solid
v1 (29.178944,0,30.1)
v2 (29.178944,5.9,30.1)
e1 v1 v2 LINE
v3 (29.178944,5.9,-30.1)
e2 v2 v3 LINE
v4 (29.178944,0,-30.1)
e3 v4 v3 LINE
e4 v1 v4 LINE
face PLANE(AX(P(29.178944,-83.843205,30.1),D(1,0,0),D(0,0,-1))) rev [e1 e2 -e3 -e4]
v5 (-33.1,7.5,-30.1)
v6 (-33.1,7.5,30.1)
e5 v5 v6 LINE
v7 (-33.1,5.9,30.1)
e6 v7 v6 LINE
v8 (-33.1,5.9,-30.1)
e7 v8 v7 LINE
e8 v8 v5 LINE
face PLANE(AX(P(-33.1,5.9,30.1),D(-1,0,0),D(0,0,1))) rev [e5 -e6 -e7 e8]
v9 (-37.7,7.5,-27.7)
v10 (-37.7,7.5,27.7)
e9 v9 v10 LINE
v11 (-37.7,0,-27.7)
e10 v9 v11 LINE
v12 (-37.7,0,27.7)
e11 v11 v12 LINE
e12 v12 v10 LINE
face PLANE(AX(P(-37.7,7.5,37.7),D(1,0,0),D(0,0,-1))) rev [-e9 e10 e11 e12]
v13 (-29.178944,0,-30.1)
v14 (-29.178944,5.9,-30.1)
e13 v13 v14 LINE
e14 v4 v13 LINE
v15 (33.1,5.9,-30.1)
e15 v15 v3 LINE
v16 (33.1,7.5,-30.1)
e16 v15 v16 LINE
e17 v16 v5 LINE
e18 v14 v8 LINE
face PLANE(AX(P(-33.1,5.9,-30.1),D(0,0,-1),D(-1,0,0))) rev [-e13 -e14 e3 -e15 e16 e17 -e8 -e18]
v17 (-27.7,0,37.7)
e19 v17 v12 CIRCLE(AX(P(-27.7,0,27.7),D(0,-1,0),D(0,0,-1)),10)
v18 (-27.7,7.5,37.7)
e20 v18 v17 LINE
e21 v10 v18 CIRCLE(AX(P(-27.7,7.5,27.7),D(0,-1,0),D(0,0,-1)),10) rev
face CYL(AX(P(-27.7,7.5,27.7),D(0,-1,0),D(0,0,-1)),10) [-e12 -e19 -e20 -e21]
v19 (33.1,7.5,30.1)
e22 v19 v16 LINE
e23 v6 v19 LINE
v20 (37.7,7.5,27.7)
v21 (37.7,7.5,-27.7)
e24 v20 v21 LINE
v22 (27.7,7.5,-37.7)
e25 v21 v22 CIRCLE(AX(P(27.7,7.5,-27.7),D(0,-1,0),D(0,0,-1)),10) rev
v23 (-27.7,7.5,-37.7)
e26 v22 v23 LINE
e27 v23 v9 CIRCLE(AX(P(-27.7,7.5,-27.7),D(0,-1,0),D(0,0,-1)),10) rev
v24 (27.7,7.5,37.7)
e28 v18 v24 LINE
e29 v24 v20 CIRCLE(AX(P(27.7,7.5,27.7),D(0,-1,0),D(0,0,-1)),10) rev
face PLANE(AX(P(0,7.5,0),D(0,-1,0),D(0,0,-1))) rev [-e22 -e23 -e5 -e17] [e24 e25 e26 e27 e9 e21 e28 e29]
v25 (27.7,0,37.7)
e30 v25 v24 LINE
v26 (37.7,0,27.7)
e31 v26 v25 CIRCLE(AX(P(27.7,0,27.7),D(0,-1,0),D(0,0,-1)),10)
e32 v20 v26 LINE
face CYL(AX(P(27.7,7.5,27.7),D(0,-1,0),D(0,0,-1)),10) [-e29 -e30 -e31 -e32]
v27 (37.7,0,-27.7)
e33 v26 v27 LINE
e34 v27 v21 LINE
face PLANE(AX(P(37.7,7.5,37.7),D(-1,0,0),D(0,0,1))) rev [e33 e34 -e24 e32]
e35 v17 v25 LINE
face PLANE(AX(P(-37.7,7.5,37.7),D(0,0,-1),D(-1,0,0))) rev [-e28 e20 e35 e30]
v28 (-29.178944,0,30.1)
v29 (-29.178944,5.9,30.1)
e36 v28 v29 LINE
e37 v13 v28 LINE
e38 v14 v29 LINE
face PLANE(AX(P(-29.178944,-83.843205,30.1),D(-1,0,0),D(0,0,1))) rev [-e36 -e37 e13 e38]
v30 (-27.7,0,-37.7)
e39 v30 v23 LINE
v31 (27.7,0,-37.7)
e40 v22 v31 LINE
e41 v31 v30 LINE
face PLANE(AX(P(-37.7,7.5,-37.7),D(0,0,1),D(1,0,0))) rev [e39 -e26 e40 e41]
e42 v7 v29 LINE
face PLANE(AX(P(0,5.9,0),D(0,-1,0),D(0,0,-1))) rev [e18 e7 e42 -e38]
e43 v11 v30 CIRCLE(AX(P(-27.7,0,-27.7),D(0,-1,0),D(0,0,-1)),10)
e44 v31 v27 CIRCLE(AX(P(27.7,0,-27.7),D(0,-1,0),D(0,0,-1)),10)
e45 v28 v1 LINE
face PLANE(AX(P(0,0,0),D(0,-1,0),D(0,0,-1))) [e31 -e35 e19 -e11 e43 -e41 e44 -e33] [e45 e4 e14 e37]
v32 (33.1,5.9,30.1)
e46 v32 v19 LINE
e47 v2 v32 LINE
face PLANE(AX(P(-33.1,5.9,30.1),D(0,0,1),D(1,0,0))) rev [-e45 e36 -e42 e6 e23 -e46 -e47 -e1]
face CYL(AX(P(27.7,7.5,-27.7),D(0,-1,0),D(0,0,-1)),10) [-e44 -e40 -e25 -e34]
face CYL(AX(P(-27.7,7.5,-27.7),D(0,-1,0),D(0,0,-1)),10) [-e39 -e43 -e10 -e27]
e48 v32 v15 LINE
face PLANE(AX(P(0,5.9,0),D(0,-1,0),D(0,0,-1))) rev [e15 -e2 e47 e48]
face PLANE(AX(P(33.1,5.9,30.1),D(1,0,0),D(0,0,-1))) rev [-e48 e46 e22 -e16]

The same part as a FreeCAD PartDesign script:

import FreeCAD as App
import Part
import Sketcher

V = App.Vector
Q = App.Units.Quantity


def edges_at(feature, points):
    """Names of the edges that pass closest to the given points."""
    edges = feature.Shape.Edges
    near = lambda p: min(range(len(edges)), key=lambda i: edges[i].distToShape(Part.Vertex(*p))[0])
    return sorted({f"Edge{near(p) + 1}" for p in points})

doc = App.newDocument("Part")
body = doc.addObject("PartDesign::Body", "Body")

sketch1 = body.newObject("Sketcher::SketchObject", "Sketch")
sketch1.AttachmentSupport = (doc.getObject("XZ_Plane"), [""])
sketch1.MapMode = "FlatFace"
sketch1.addGeometry([
    Part.LineSegment(V(-38, -38, 0), V(-38, 38, 0)),
    Part.LineSegment(V(-38, 38, 0), V(38, 38, 0)),
    Part.LineSegment(V(38, 38, 0), V(38, -38, 0)),
    Part.LineSegment(V(38, -38, 0), V(-38, -38, 0)),
], False)
sketch1.addConstraint([
    Sketcher.Constraint("Coincident", 0, 2, 1, 1),
    Sketcher.Constraint("Coincident", 1, 2, 2, 1),
    Sketcher.Constraint("Coincident", 2, 2, 3, 1),
    Sketcher.Constraint("Coincident", 3, 2, 0, 1),
    Sketcher.Constraint("Vertical", 0),
    Sketcher.Constraint("Horizontal", 1),
    Sketcher.Constraint("Vertical", 2),
    Sketcher.Constraint("Horizontal", 3),
    Sketcher.Constraint("Symmetric", 0, 2, 2, 2, -1, 1),
    Sketcher.Constraint("Equal", 3, 0),
    Sketcher.Constraint("DistanceX", 1, 1, 1, 2, Q("75.4 mm")),
])
pad1 = body.newObject("PartDesign::Pad", "Pad")
pad1.Profile = sketch1
pad1.Length = 7.5
pad1.Reversed = True

sketch2 = body.newObject("Sketcher::SketchObject", "Sketch001")
sketch2.AttachmentSupport = (doc.getObject("XZ_Plane"), [""])
sketch2.MapMode = "FlatFace"
sketch2.AttachmentOffset = App.Placement(V(0, 0, -7.5), App.Rotation())
sketch2.addGeometry([
    Part.LineSegment(V(-33, -30, 0), V(-33, 30, 0)),
    Part.LineSegment(V(-33, 30, 0), V(33, 30, 0)),
    Part.LineSegment(V(33, 30, 0), V(33, -30, 0)),
    Part.LineSegment(V(33, -30, 0), V(-33, -30, 0)),
], False)
sketch2.addConstraint([
    Sketcher.Constraint("Coincident", 0, 2, 1, 1),
    Sketcher.Constraint("Coincident", 1, 2, 2, 1),
    Sketcher.Constraint("Coincident", 2, 2, 3, 1),
    Sketcher.Constraint("Coincident", 3, 2, 0, 1),
    Sketcher.Constraint("Vertical", 0),
    Sketcher.Constraint("Horizontal", 1),
    Sketcher.Constraint("Vertical", 2),
    Sketcher.Constraint("Horizontal", 3),
    Sketcher.Constraint("Symmetric", 0, 2, 2, 2, -1, 1),
    Sketcher.Constraint("DistanceX", 1, 1, 1, 2, Q("66.2 mm")),
    Sketcher.Constraint("DistanceY", 0, 1, 0, 2, Q("60.2 mm")),
])
pocket1 = body.newObject("PartDesign::Pocket", "Pocket")
pocket1.Profile = sketch2
pocket1.Length = 1.6
pocket1.Reversed = True

sketch3 = body.newObject("Sketcher::SketchObject", "Sketch002")
sketch3.AttachmentSupport = (doc.getObject("XZ_Plane"), [""])
sketch3.MapMode = "FlatFace"
sketch3.AttachmentOffset = App.Placement(V(0, 0, -5.9), App.Rotation())
sketch3.addGeometry([
    Part.LineSegment(V(-29, -30, 0), V(-29, 30, 0)),
    Part.LineSegment(V(-29, 30, 0), V(29, 30, 0)),
    Part.LineSegment(V(29, 30, 0), V(29, -30, 0)),
    Part.LineSegment(V(29, -30, 0), V(-29, -30, 0)),
], False)
sketch3.addConstraint([
    Sketcher.Constraint("Coincident", 0, 2, 1, 1),
    Sketcher.Constraint("Coincident", 1, 2, 2, 1),
    Sketcher.Constraint("Coincident", 2, 2, 3, 1),
    Sketcher.Constraint("Coincident", 3, 2, 0, 1),
    Sketcher.Constraint("Vertical", 0),
    Sketcher.Constraint("Horizontal", 1),
    Sketcher.Constraint("Vertical", 2),
    Sketcher.Constraint("Horizontal", 3),
    Sketcher.Constraint("Symmetric", 0, 2, 2, 2, -1, 1),
    Sketcher.Constraint("DistanceY", 0, 1, 0, 2, Q("60.2 mm")),
    Sketcher.Constraint("DistanceX", 1, 1, 1, 2, Q("58.357887 mm")),
])
pocket2 = body.newObject("PartDesign::Pocket", "Pocket001")
pocket2.Profile = sketch3
pocket2.Length = 5.9
pocket2.Reversed = True
doc.recompute()

fillet = body.newObject("PartDesign::Fillet", "Fillet")
fillet.Base = (pocket2, edges_at(pocket2, [
    (37.7, 3.75, 37.7),
    (-37.7, 3.75, 37.7),
    (-37.7, 3.75, -37.7),
    (37.7, 3.75, -37.7),
]))
fillet.Radius = 10

doc.recompute()
